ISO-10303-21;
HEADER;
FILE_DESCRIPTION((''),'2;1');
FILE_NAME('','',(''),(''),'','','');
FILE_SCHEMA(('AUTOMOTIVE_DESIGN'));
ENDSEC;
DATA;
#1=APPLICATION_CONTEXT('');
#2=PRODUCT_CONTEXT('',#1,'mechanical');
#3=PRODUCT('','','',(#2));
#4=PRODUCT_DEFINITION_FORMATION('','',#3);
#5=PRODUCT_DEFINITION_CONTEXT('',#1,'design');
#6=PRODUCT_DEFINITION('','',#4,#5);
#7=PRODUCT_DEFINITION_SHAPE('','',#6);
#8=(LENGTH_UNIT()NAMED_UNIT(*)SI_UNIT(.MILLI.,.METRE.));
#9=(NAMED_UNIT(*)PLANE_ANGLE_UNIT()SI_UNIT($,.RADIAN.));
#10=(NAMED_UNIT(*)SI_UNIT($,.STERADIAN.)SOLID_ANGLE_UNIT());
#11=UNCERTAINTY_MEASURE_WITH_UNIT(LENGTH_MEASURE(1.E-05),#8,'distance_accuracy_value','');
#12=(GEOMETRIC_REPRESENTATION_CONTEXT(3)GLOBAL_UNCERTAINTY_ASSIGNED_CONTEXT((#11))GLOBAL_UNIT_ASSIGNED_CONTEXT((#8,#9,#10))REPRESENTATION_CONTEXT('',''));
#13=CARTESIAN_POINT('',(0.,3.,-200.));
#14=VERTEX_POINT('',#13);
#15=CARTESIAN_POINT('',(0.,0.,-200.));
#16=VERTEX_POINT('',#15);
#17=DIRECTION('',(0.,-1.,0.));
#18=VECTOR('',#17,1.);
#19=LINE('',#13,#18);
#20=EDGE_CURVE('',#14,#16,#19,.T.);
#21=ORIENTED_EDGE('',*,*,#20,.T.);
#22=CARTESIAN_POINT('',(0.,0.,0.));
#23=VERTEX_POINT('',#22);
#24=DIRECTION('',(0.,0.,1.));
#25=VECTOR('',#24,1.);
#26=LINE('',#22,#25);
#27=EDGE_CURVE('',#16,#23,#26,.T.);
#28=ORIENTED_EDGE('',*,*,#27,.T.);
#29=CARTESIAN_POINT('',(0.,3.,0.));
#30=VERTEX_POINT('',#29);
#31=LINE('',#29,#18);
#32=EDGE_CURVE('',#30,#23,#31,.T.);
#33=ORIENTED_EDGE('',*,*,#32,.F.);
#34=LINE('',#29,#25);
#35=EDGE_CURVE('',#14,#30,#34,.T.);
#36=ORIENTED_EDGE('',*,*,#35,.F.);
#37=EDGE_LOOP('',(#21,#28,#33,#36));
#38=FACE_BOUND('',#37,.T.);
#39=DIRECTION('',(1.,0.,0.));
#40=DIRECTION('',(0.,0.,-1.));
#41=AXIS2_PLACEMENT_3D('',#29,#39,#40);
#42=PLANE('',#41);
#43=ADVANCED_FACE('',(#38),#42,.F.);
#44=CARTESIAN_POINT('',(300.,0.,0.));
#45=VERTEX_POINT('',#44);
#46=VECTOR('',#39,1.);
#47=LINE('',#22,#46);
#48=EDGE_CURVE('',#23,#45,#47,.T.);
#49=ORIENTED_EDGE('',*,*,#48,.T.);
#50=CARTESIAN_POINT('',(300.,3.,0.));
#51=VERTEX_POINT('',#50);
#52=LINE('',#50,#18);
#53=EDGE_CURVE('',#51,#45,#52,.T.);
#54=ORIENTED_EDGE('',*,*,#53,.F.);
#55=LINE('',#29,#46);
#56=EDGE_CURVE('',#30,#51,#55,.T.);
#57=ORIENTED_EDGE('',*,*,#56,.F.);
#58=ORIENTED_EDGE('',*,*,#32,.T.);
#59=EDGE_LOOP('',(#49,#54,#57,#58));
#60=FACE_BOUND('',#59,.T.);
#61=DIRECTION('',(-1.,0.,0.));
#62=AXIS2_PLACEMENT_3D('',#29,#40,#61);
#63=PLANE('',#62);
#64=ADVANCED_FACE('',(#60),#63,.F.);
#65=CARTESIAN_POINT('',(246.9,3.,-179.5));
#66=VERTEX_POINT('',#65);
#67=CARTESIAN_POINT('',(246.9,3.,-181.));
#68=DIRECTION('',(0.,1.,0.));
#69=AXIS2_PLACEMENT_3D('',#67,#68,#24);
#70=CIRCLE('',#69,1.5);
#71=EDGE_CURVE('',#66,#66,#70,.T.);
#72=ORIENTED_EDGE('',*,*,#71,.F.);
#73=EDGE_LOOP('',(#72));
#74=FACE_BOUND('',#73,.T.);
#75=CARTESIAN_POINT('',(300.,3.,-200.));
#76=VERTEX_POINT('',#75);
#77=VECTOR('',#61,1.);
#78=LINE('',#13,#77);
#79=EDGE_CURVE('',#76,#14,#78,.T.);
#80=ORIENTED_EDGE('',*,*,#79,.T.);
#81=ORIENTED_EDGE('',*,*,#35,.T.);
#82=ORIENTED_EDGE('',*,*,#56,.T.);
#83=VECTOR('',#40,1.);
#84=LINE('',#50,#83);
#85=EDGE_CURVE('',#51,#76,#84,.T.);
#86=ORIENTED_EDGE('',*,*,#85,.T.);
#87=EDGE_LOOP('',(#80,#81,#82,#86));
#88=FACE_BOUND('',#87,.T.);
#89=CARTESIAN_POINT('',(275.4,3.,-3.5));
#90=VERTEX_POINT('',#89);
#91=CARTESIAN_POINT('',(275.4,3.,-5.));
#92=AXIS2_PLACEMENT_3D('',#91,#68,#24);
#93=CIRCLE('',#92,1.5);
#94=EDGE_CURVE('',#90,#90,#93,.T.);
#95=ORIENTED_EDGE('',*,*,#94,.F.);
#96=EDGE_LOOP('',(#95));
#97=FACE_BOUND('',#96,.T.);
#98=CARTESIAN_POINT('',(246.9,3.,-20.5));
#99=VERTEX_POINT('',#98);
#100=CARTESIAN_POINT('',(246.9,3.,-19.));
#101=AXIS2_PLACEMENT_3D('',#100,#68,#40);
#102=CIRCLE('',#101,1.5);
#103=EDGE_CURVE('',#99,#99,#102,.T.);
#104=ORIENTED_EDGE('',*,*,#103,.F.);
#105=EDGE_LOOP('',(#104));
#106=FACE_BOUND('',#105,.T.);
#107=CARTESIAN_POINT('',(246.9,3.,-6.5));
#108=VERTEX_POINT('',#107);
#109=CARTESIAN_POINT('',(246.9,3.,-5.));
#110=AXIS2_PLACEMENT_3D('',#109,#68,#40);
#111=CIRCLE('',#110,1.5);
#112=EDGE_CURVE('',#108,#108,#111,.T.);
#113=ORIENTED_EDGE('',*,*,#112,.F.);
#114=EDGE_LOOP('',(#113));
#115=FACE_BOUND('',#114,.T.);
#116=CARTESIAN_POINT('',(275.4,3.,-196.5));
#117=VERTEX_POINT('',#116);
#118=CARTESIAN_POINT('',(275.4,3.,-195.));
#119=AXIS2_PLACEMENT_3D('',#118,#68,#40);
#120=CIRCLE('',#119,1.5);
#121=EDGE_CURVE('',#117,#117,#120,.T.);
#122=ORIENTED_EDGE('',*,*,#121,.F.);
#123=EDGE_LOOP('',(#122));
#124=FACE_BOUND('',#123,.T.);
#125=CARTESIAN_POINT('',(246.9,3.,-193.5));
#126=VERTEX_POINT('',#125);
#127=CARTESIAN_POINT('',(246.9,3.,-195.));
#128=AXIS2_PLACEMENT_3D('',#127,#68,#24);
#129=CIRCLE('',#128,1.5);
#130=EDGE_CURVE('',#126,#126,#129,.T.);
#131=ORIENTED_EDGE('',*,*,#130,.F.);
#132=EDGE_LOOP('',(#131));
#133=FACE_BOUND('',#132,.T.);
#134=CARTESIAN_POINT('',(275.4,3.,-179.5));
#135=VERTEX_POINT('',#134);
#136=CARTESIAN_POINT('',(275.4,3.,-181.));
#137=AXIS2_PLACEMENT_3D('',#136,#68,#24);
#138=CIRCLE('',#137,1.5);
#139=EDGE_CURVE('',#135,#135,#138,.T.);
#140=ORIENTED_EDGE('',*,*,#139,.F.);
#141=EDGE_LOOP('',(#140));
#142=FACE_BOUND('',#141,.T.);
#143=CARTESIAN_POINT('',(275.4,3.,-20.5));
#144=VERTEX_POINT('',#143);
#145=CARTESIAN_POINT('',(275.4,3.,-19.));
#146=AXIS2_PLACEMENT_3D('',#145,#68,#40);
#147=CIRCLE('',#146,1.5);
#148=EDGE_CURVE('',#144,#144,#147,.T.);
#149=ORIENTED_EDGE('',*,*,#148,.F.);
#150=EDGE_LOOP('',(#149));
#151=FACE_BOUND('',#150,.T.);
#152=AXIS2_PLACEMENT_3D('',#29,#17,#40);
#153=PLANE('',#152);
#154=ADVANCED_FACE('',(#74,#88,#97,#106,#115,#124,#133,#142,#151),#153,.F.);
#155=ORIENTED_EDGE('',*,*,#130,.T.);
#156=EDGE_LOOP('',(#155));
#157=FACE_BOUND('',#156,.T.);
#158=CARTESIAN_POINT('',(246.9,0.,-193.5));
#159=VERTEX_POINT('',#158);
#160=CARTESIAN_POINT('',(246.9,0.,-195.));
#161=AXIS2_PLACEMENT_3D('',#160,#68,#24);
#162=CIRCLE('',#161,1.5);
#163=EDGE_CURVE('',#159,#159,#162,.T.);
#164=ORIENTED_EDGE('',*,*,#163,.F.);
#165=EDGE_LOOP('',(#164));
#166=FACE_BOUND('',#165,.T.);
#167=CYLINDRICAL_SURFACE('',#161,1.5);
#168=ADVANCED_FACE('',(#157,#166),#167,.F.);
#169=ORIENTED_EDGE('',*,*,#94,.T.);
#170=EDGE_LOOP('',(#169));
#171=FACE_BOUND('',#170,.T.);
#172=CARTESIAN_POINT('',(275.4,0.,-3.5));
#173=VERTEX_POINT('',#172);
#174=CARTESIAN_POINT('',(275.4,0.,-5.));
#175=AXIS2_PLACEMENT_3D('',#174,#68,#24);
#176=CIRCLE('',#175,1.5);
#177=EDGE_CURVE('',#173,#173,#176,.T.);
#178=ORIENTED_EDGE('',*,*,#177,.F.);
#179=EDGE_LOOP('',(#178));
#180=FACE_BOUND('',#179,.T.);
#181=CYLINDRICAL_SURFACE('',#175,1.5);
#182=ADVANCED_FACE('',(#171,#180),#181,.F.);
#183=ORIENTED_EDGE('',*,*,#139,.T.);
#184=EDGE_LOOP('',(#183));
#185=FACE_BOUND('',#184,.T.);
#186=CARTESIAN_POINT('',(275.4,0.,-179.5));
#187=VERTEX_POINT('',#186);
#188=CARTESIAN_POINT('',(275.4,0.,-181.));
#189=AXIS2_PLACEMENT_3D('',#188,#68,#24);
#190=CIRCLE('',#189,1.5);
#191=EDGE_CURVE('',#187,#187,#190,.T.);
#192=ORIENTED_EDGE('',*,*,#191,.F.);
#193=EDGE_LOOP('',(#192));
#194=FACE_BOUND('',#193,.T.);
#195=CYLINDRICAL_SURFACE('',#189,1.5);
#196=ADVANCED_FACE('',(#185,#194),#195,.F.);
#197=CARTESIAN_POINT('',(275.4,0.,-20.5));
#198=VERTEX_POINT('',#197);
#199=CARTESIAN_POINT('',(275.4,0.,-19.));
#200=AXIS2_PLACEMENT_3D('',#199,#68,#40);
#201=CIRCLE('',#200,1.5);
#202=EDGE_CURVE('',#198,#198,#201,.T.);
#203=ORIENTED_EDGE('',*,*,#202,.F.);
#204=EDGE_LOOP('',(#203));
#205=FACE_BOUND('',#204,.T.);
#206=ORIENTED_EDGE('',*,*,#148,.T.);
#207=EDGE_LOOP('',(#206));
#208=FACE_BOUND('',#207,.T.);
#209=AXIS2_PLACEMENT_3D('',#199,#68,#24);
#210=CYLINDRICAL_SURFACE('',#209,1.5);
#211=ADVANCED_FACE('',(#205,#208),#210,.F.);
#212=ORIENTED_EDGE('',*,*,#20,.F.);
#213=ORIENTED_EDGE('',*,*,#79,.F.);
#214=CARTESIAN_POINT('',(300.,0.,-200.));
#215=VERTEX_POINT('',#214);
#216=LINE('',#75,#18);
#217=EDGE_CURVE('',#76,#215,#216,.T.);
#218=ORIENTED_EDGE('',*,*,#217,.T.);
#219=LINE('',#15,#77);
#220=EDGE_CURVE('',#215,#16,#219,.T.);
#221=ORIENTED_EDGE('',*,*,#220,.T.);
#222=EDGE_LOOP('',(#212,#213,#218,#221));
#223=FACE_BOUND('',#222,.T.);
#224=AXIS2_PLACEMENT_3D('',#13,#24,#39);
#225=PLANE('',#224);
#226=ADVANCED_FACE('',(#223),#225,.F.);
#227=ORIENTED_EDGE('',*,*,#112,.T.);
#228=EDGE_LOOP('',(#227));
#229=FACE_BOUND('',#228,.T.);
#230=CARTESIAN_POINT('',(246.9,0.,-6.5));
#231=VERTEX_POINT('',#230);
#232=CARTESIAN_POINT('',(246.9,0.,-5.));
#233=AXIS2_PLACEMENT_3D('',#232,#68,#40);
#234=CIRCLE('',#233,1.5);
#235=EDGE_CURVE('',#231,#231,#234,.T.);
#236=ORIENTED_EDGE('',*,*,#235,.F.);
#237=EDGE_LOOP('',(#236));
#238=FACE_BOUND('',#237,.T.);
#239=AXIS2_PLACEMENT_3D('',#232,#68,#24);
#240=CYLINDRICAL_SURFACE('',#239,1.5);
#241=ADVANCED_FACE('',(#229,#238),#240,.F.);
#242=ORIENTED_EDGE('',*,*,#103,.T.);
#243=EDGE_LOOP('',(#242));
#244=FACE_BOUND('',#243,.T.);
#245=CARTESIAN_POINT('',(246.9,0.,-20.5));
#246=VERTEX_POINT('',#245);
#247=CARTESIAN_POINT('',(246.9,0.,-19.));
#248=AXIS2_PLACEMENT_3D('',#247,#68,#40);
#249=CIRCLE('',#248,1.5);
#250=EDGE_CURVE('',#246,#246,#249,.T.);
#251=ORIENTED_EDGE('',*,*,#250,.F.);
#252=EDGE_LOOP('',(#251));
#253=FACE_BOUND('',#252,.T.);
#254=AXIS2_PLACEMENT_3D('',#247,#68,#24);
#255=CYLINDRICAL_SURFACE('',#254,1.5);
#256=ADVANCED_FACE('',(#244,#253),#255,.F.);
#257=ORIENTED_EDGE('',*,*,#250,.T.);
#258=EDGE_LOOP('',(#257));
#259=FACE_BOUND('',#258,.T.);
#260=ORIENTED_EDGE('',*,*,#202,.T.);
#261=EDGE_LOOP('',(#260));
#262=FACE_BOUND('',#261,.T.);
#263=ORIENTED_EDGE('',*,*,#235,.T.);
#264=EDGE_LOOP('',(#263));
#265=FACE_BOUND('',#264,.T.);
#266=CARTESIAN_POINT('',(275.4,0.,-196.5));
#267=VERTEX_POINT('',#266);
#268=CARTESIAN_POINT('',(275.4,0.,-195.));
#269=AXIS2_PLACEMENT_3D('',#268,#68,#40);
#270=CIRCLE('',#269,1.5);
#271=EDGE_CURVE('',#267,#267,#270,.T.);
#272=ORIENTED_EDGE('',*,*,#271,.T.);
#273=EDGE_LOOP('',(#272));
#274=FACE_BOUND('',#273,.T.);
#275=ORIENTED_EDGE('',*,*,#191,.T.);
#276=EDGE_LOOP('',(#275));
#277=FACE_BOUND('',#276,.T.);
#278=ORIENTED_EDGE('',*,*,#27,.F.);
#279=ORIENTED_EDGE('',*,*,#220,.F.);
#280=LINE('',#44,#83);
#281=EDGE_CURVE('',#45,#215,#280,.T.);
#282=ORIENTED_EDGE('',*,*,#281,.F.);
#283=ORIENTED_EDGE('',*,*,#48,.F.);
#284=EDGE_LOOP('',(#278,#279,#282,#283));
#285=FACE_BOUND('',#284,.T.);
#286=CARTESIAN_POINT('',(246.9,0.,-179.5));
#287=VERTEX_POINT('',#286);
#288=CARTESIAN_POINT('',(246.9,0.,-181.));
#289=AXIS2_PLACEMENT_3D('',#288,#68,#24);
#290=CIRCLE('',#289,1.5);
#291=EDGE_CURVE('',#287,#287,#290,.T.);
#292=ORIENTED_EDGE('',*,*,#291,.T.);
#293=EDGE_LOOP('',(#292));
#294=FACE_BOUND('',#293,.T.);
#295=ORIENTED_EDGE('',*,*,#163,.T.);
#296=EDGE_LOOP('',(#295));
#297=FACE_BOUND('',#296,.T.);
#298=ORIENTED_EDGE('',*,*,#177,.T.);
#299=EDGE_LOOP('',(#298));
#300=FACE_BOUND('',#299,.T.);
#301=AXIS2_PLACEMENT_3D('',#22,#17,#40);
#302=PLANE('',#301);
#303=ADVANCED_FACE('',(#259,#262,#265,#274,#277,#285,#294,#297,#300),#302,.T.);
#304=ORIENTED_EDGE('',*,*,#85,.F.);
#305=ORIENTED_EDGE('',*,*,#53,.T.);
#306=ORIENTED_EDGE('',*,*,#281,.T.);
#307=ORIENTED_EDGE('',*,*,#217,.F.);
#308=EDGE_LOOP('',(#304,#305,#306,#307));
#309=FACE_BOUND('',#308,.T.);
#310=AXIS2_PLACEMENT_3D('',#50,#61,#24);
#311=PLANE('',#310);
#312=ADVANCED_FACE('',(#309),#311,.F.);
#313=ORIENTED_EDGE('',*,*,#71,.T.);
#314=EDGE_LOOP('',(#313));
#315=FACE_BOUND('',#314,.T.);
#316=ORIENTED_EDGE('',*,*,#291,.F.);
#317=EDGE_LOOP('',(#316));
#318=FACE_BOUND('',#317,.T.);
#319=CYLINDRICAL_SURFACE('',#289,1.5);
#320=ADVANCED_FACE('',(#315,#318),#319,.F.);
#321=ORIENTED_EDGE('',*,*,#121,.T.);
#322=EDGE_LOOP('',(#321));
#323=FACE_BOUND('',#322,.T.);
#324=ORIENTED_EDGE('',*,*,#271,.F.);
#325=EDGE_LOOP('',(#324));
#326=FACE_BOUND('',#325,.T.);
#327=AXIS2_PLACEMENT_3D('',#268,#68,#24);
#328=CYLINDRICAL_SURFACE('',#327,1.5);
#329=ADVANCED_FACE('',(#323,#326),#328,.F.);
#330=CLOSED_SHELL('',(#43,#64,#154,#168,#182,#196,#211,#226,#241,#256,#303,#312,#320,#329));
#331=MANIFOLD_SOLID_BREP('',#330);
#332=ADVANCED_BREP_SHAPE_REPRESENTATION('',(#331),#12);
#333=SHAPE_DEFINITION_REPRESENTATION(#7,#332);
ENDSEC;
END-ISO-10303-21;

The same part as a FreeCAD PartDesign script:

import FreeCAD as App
import Part
import Sketcher

V = App.Vector
Q = App.Units.Quantity

doc = App.newDocument("Part")
body = doc.addObject("PartDesign::Body", "Body")

sketch1 = body.newObject("Sketcher::SketchObject", "Sketch")
sketch1.AttachmentSupport = (doc.getObject("XZ_Plane"), [""])
sketch1.MapMode = "FlatFace"
sketch1.addGeometry(Part.LineSegment(V(0, -200, 0), V(0, 0, 0)), False)
sketch1.addGeometry(Part.LineSegment(V(0, 0, 0), V(300, 0, 0)), False)
sketch1.addGeometry(Part.LineSegment(V(300, 0, 0), V(300, -200, 0)), False)
sketch1.addGeometry(Part.LineSegment(V(300, -200, 0), V(0, -200, 0)), False)
sketch1.addConstraint(Sketcher.Constraint("Coincident", 0, 2, 1, 1))
sketch1.addConstraint(Sketcher.Constraint("Coincident", 1, 2, 2, 1))
sketch1.addConstraint(Sketcher.Constraint("Coincident", 2, 2, 3, 1))
sketch1.addConstraint(Sketcher.Constraint("Coincident", 3, 2, 0, 1))
sketch1.addConstraint(Sketcher.Constraint("Vertical", 0))
sketch1.addConstraint(Sketcher.Constraint("Horizontal", 1))
sketch1.addConstraint(Sketcher.Constraint("Vertical", 2))
sketch1.addConstraint(Sketcher.Constraint("Horizontal", 3))
sketch1.addConstraint(Sketcher.Constraint("Coincident", 0, 2, -1, 1))
sketch1.addConstraint(Sketcher.Constraint("DistanceX", 1, 1, 1, 2, Q("300 mm")))
sketch1.addConstraint(Sketcher.Constraint("DistanceY", 0, 1, 0, 2, Q("200 mm")))
pad1 = body.newObject("PartDesign::Pad", "Pad")
pad1.Profile = sketch1
pad1.Length = 3
pad1.Reversed = True

sketch2 = body.newObject("Sketcher::SketchObject", "Sketch001")
sketch2.AttachmentSupport = (doc.getObject("XZ_Plane"), [""])
sketch2.MapMode = "FlatFace"
sketch2.AttachmentOffset = App.Placement(V(0, 0, -3), App.Rotation())
sketch2.addGeometry(Part.Circle(V(275.4, -195, 0), V(0, 0, 1), 1.5), False)
sketch2.addGeometry(Part.Circle(V(246.9, -195, 0), V(0, 0, 1), 1.5), False)
sketch2.addGeometry(Part.Circle(V(275.4, -181, 0), V(0, 0, 1), 1.5), False)
sketch2.addGeometry(Part.Circle(V(246.9, -181, 0), V(0, 0, 1), 1.5), False)
sketch2.addGeometry(Part.Circle(V(275.4, -19, 0), V(0, 0, 1), 1.5), False)
sketch2.addGeometry(Part.Circle(V(275.4, -5, 0), V(0, 0, 1), 1.5), False)
sketch2.addGeometry(Part.Circle(V(246.9, -5, 0), V(0, 0, 1), 1.5), False)
sketch2.addGeometry(Part.Circle(V(246.9, -19, 0), V(0, 0, 1), 1.5), False)
sketch2.addConstraint(Sketcher.Constraint("Equal", 0, 1))
sketch2.addConstraint(Sketcher.Constraint("Equal", 1, 2))
sketch2.addConstraint(Sketcher.Constraint("Equal", 2, 3))
sketch2.addConstraint(Sketcher.Constraint("Equal", 3, 4))
sketch2.addConstraint(Sketcher.Constraint("Equal", 4, 5))
sketch2.addConstraint(Sketcher.Constraint("Equal", 5, 6))
sketch2.addConstraint(Sketcher.Constraint("Equal", 6, 7))
sketch2.addConstraint(Sketcher.Constraint("Horizontal", 0, 3, 1, 3))
sketch2.addConstraint(Sketcher.Constraint("Horizontal", 2, 3, 3, 3))
sketch2.addConstraint(Sketcher.Constraint("Horizontal", 5, 3, 6, 3))
sketch2.addConstraint(Sketcher.Constraint("Horizontal", 4, 3, 7, 3))
sketch2.addConstraint(Sketcher.Constraint("Vertical", 0, 3, 2, 3))
sketch2.addConstraint(Sketcher.Constraint("Vertical", 1, 3, 3, 3))
sketch2.addConstraint(Sketcher.Constraint("Vertical", 2, 3, 4, 3))
sketch2.addConstraint(Sketcher.Constraint("Vertical", 4, 3, 5, 3))
sketch2.addConstraint(Sketcher.Constraint("Vertical", 3, 3, 6, 3))
sketch2.addConstraint(Sketcher.Constraint("Vertical", 6, 3, 7, 3))
sketch2.addConstraint(Sketcher.Constraint("Diameter", 0, Q("3 mm")))
sketch2.addConstraint(Sketcher.Constraint("DistanceY", 0, 3, -1, 1, Q("195 mm")))
sketch2.addConstraint(Sketcher.Constraint("DistanceY", 2, 3, -1, 1, Q("181 mm")))
sketch2.addConstraint(Sketcher.Constraint("DistanceY", 4, 3, -1, 1, Q("19 mm")))
sketch2.addConstraint(Sketcher.Constraint("DistanceY", 5, 3, -1, 1, Q("5 mm")))
sketch2.addConstraint(Sketcher.Constraint("DistanceX", -1, 1, 0, 3, Q("275.4 mm")))
sketch2.addConstraint(Sketcher.Constraint("DistanceX", -1, 1, 1, 3, Q("246.9 mm")))
pocket1 = body.newObject("PartDesign::Pocket", "Pocket")
pocket1.Profile = sketch2
pocket1.Type = "ThroughAll"
pocket1.Reversed = True

doc.recompute()
